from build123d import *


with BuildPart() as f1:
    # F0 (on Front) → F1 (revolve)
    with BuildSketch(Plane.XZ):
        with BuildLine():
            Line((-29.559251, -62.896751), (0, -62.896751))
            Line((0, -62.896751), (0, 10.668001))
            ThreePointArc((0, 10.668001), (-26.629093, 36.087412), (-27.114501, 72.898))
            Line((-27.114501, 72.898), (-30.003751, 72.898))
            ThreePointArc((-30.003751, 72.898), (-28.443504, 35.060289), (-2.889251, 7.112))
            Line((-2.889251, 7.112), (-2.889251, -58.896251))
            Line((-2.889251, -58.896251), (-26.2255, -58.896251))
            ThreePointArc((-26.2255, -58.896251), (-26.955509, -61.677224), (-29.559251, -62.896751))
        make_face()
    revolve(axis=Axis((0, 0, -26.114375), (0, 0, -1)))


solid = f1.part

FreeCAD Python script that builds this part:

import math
import FreeCAD as App
import Part
import Sketcher
from FreeCAD import Vector
Q = App.Units.Quantity

doc = App.newDocument("Part")
params = doc.addObject("Spreadsheet::Sheet", "Params")
for row, (alias, value) in enumerate([
    ("revolution_angle", "360 deg"),
], start=1):
    params.set(f"A{row}", alias)
    params.set(f"B{row}", "=" + value)
    params.setAlias(f"B{row}", alias)

body = doc.addObject("PartDesign::Body", "Body")

# Sketch on XZ plane
sketch1 = body.newObject("Sketcher::SketchObject", "Sketch")
sketch1.AttachmentSupport = (doc.getObject("XZ_Plane"), [""])
sketch1.MapMode = "FlatFace"
sketch1.addGeometry([
    Part.LineSegment(Vector(-29.6, -62.9, 0), Vector(0, -62.9, 0)),  # 0
    Part.LineSegment(Vector(0, -62.9, 0), Vector(0, 10.7, 0)),  # 1
    Part.ArcOfCircle(Part.Circle(Vector(16.9, 55.1, 0), Vector(0, 0, 1), 47.5), math.radians(158), math.radians(249)),  # 2
    Part.LineSegment(Vector(-27.1, 72.9, 0), Vector(-30, 72.9, 0)),  # 3
    Part.ArcOfCircle(Part.Circle(Vector(22.6, 56.1, 0), Vector(0, 0, 1), 55.3), math.radians(162), math.radians(242)),  # 4
    Part.LineSegment(Vector(-2.9, 7.1, 0), Vector(-2.9, -58.9, 0)),  # 5
    Part.LineSegment(Vector(-2.9, -58.9, 0), Vector(-26.2, -58.9, 0)),  # 6
    Part.ArcOfCircle(Part.Circle(Vector(-29.6, -59.5, 0), Vector(0, 0, 1), 3.4), math.radians(-90), math.radians(10)),  # 7
], False)
sketch1.addConstraint([
    Sketcher.Constraint("Coincident", 0, 2, 1, 1),
    Sketcher.Constraint("Coincident", 1, 2, 2, 2),
    Sketcher.Constraint("Coincident", 2, 1, 3, 1),
    Sketcher.Constraint("Coincident", 3, 2, 4, 1),
    Sketcher.Constraint("Coincident", 4, 2, 5, 1),
    Sketcher.Constraint("Coincident", 5, 2, 6, 1),
    Sketcher.Constraint("Coincident", 6, 2, 7, 2),
    Sketcher.Constraint("Tangent", 7, 1, 0, 1),
    Sketcher.Constraint("Horizontal", 0),
    Sketcher.Constraint("Vertical", 1),
    Sketcher.Constraint("Horizontal", 3),
    Sketcher.Constraint("Vertical", 5),
    Sketcher.Constraint("Horizontal", 6),
    Sketcher.Constraint("PointOnObject", 0, 2, -2),
    Sketcher.Constraint("Radius", 2, Q("47.523528 mm")),
    Sketcher.Constraint("DistanceY", 1, 2, 2, 1, Q("62.229999 mm")),
    Sketcher.Constraint("DistanceX", 7, 3, 5, 2, Q("26.67 mm")),
    Sketcher.Constraint("DistanceY", -1, 1, 1, 2, Q("10.668001 mm")),
    Sketcher.Constraint("DistanceY", -1, 1, 4, 2, Q("7.112 mm")),
    Sketcher.Constraint("Radius", 4, Q("55.260466 mm")),
    Sketcher.Constraint("Radius", 7, Q("3.389313 mm")),
    Sketcher.Constraint("DistanceX", 0, 1, 0, 2, Q("29.559251 mm")),
    Sketcher.Constraint("DistanceX", 3, 2, 3, 1, Q("2.88925 mm")),
    Sketcher.Constraint("DistanceX", 6, 2, 6, 1, Q("23.336249 mm")),
    Sketcher.Constraint("DistanceY", 1, 1, 1, 2, Q("73.564752 mm")),
    Sketcher.Constraint("DistanceX", 2, 1, -1, 1, Q("27.114501 mm")),
])
revolution = body.newObject("PartDesign::Revolution", "Revolution")
revolution.Profile = sketch1
revolution.ReferenceAxis = (sketch1, ["V_Axis"])
revolution.setExpression("Angle", "Params.revolution_angle")

doc.recompute()
